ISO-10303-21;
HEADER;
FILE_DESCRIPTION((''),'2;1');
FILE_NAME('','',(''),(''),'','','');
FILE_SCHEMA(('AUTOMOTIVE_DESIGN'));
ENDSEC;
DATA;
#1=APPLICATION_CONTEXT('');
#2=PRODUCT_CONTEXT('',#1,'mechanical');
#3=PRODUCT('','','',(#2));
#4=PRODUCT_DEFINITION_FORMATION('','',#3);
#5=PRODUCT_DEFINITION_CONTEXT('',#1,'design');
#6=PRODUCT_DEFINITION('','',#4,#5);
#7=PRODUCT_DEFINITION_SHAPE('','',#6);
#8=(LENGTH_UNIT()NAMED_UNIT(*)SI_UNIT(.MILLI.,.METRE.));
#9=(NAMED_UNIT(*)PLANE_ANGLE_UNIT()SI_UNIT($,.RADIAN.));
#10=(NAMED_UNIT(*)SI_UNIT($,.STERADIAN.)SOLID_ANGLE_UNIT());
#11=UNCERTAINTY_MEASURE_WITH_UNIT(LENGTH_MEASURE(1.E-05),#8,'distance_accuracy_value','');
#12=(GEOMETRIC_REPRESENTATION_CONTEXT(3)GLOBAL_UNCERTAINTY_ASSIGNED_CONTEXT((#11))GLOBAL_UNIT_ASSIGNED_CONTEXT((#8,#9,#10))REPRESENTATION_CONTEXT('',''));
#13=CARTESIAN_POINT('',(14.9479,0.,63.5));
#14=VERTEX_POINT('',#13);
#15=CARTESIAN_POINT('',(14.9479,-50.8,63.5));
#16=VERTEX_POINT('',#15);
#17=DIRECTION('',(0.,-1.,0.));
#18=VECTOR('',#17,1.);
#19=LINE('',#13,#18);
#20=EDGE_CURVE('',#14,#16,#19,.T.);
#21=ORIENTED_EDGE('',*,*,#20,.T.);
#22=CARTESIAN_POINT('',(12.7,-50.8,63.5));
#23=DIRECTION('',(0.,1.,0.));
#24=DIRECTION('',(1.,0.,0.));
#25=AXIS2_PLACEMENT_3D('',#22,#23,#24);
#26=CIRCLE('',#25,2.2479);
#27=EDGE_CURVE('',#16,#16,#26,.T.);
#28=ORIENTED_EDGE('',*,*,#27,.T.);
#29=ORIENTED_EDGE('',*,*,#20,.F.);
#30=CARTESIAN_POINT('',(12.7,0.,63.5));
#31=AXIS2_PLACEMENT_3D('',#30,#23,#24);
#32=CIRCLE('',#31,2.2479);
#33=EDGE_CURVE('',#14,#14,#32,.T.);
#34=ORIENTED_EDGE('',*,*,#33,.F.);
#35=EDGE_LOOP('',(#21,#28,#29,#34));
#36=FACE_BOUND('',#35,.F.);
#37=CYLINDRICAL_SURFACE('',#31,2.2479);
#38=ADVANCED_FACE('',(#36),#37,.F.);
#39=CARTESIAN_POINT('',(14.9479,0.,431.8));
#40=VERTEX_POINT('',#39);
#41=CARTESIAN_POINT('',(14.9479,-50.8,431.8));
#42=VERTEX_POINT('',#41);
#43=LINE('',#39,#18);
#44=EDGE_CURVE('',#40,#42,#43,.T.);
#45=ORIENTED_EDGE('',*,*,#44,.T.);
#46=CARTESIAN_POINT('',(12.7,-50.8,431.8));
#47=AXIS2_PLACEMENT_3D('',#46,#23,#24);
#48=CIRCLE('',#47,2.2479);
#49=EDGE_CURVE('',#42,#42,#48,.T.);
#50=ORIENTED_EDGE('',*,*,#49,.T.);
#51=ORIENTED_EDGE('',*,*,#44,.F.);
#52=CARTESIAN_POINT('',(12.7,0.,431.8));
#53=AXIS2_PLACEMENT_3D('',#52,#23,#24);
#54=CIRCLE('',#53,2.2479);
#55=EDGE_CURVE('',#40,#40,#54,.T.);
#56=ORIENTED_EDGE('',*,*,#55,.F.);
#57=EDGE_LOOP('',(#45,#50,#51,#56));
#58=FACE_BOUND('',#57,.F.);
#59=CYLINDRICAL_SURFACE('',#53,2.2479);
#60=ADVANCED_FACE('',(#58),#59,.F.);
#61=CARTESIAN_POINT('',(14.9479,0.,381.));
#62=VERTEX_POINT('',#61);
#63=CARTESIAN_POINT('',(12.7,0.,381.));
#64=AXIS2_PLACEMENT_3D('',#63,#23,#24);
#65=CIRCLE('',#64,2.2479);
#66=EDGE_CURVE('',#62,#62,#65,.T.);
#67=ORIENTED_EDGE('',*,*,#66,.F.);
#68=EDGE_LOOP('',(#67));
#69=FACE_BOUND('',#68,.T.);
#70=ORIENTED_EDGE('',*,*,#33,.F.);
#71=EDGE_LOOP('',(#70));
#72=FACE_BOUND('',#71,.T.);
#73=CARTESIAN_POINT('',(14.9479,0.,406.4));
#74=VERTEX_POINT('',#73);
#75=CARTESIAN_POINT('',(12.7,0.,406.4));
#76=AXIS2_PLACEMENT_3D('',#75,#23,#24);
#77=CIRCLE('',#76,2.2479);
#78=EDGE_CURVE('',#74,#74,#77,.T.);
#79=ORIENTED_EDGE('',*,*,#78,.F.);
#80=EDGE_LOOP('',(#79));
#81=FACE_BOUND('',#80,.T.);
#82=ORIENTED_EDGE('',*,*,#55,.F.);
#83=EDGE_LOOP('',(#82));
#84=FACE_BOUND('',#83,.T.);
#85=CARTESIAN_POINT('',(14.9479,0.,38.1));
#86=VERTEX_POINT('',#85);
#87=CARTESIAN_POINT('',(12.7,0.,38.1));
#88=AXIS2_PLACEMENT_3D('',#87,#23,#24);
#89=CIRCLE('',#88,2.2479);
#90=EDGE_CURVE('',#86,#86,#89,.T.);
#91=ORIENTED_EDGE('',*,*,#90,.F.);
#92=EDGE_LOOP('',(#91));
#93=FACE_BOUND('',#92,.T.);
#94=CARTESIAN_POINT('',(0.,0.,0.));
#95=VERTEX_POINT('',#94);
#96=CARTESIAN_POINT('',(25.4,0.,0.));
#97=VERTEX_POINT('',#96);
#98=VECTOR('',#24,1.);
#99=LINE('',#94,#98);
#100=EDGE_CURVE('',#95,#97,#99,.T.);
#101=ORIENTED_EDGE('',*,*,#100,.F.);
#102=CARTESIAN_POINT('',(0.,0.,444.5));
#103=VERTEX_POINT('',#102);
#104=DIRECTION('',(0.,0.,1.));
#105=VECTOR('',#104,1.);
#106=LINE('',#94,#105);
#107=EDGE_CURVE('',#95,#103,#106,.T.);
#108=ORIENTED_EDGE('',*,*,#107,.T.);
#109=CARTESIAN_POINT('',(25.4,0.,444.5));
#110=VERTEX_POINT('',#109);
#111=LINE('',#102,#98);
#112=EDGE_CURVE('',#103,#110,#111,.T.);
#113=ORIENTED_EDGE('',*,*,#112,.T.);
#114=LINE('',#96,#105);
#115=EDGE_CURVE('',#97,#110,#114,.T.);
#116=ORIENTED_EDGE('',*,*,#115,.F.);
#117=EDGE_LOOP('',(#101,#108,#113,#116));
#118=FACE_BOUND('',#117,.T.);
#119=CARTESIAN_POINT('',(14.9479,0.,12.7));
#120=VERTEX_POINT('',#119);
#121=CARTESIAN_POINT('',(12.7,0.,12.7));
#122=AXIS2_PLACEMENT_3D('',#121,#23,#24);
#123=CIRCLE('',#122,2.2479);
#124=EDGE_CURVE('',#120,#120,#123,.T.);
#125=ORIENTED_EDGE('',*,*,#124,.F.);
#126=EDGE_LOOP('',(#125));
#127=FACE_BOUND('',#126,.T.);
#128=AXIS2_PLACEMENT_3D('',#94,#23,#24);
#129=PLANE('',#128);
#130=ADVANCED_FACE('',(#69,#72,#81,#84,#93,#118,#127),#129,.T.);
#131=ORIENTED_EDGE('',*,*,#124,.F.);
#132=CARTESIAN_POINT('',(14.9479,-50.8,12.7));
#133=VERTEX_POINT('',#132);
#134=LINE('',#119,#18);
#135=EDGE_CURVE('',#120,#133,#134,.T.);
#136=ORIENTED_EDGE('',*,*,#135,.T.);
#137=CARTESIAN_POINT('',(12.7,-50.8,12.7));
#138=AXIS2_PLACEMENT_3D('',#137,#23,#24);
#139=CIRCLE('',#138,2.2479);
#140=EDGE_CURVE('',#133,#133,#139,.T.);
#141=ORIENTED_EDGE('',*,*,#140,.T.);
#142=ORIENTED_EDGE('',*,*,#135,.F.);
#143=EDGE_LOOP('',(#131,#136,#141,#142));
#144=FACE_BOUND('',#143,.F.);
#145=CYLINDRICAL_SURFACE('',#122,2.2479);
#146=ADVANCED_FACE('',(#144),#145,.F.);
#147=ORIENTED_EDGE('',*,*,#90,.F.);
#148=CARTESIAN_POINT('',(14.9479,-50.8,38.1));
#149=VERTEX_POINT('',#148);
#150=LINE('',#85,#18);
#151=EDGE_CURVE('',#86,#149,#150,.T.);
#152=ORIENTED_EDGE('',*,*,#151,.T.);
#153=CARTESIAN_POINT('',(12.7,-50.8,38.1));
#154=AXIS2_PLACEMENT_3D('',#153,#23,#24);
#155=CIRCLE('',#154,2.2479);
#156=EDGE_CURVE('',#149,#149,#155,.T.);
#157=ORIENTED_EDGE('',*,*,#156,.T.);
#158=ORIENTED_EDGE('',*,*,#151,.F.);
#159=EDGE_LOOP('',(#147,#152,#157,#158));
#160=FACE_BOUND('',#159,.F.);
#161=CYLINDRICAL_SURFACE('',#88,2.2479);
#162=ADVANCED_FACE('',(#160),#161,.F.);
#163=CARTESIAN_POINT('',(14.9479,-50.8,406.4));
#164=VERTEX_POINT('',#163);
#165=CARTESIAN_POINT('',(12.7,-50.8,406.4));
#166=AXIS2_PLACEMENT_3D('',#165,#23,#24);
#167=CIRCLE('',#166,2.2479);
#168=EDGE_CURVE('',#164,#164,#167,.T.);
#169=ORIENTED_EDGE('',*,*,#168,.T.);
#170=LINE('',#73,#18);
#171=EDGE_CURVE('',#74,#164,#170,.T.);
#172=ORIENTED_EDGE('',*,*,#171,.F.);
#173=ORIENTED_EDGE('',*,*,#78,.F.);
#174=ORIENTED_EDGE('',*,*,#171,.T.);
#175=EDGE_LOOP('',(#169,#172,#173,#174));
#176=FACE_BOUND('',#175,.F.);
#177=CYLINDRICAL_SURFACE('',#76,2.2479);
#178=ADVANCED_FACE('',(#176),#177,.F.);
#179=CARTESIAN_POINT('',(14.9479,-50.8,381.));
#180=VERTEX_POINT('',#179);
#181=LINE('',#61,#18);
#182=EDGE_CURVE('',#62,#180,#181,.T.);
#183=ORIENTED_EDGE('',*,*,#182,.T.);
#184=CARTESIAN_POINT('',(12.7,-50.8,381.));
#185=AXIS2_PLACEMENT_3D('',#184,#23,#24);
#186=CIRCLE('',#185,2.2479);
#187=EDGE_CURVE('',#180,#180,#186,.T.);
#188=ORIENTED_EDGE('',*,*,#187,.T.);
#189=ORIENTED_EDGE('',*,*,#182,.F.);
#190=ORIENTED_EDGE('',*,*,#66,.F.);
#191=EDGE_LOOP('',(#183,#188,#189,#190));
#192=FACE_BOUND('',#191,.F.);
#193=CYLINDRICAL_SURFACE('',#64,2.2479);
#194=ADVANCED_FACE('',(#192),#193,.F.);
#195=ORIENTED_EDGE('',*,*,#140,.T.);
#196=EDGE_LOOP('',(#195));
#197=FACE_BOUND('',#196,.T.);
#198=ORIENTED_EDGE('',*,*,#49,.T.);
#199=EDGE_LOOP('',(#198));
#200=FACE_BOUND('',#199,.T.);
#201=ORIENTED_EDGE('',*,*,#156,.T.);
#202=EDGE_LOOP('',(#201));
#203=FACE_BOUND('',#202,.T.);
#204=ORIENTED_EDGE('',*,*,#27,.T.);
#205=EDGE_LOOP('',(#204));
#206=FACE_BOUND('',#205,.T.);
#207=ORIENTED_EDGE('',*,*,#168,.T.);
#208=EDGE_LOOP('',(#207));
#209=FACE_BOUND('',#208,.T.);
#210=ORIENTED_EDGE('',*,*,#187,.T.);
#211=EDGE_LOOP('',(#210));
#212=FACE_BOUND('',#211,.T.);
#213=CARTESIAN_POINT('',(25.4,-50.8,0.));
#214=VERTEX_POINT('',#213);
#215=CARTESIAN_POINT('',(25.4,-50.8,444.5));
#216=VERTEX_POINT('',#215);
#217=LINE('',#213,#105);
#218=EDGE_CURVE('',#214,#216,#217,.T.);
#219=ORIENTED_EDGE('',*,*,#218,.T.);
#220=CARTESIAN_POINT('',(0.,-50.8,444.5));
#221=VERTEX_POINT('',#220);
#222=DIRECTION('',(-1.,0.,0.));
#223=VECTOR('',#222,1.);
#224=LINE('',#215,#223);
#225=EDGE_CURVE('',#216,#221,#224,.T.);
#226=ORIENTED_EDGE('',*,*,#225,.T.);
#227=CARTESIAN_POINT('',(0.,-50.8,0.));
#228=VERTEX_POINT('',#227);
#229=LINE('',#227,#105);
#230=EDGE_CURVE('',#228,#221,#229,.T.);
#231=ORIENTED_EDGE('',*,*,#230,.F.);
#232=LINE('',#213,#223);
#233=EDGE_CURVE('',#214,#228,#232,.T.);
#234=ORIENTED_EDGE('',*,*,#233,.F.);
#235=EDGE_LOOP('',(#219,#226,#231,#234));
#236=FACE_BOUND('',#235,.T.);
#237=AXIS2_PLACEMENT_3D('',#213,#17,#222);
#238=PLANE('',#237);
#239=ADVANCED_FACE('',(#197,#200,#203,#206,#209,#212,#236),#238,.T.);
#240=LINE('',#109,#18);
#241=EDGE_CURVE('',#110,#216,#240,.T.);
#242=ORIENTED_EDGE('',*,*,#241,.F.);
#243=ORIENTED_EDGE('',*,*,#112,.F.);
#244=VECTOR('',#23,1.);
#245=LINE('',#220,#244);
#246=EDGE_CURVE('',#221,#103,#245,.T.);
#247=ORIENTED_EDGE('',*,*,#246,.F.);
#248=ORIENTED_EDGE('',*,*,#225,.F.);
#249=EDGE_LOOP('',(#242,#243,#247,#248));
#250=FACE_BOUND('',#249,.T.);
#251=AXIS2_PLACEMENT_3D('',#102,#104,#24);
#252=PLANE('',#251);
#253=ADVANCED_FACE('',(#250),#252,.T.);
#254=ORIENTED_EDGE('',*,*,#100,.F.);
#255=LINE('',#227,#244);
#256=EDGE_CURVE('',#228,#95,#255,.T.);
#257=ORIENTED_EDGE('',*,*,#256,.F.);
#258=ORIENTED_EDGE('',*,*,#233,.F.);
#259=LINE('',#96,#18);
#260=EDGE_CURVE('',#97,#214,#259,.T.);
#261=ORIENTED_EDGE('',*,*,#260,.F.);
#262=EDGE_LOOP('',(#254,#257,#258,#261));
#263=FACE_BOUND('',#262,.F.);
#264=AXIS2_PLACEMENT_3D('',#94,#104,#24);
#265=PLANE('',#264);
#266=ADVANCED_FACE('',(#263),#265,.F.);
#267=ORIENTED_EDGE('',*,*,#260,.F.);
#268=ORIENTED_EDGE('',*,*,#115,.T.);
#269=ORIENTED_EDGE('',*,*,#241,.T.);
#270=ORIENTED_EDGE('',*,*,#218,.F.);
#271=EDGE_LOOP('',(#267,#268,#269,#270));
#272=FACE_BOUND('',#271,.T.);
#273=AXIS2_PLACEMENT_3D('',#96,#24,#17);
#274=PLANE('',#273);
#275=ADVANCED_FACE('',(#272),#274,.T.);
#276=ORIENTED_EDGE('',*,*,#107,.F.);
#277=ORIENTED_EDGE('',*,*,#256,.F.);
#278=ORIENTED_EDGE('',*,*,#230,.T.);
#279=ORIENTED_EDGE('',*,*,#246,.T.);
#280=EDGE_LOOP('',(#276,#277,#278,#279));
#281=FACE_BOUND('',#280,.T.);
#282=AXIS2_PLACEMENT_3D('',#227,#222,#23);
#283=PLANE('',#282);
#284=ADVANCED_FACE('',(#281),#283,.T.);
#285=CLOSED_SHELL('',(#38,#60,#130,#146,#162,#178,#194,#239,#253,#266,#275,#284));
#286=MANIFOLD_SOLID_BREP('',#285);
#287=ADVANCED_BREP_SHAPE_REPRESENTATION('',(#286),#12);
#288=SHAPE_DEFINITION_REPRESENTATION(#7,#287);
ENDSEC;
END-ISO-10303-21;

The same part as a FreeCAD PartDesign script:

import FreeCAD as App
import Part
import Sketcher
Q = App.Units.Quantity


def add_polygon(sketch, points):
    """Adds a closed chain of lines whose ends are joined by coincident constraints."""
    first, n = sketch.GeometryCount, len(points)
    for a, b in zip(points, points[1:] + points[:1]):
        sketch.addGeometry(Part.LineSegment(App.Vector(*a, 0), App.Vector(*b, 0)), False)
    for i in range(n):
        sketch.addConstraint(Sketcher.Constraint("Coincident", first + i, 2, first + (i + 1) % n, 1))

doc = App.newDocument("Part")
body = doc.addObject("PartDesign::Body", "Body")

sketch1 = doc.addObject("Sketcher::SketchObject", "Sketch")
body.addObject(sketch1)
sketch1.AttachmentSupport = (doc.XY_Plane, [""])
sketch1.MapMode = "FlatFace"
add_polygon(sketch1, [(25, 0), (0, 0), (0, -51), (25, -51)])
sketch1.addConstraint(Sketcher.Constraint("Horizontal", 0))
sketch1.addConstraint(Sketcher.Constraint("Vertical", 1))
sketch1.addConstraint(Sketcher.Constraint("Horizontal", 2))
sketch1.addConstraint(Sketcher.Constraint("Vertical", 3))
sketch1.addConstraint(Sketcher.Constraint("Coincident", 0, 2, -1, 1))
sketch1.addConstraint(Sketcher.Constraint("DistanceX", 0, 2, 0, 1, Q("1 in")))
sketch1.addConstraint(Sketcher.Constraint("DistanceY", 1, 2, 1, 1, Q("2 in")))
pad1 = doc.addObject("PartDesign::Pad", "Pad")
body.addObject(pad1)
pad1.Profile = sketch1
pad1.Length = Q("17.5 in")

sketch2 = doc.addObject("Sketcher::SketchObject", "Sketch001")
body.addObject(sketch2)
sketch2.AttachmentSupport = (doc.XZ_Plane, [""])
sketch2.MapMode = "FlatFace"
sketch2.addGeometry(Part.Circle(App.Vector(12.7, 431.8, 0), App.Vector(0, 0, 1), 2.2), False)
sketch2.addGeometry(Part.Circle(App.Vector(12.7, 406.4, 0), App.Vector(0, 0, 1), 2.2), False)
sketch2.addGeometry(Part.Circle(App.Vector(12.7, 381, 0), App.Vector(0, 0, 1), 2.2), False)
sketch2.addConstraint(Sketcher.Constraint("Equal", 0, 1))
sketch2.addConstraint(Sketcher.Constraint("Equal", 1, 2))
sketch2.addConstraint(Sketcher.Constraint("Vertical", 0, 3, 1, 3))
sketch2.addConstraint(Sketcher.Constraint("Vertical", 1, 3, 2, 3))
sketch2.addConstraint(Sketcher.Constraint("Diameter", 0, Q("0.177 in")))
sketch2.addConstraint(Sketcher.Constraint("DistanceY", 1, 3, 0, 3, Q("1 in")))
sketch2.addConstraint(Sketcher.Constraint("DistanceY", 2, 3, 1, 3, Q("1 in")))
sketch2.addConstraint(Sketcher.Constraint("DistanceX", -1, 1, 0, 3, Q("0.5 in")))
sketch2.addConstraint(Sketcher.Constraint("DistanceY", -1, 1, 0, 3, Q("17 in")))
pocket1 = doc.addObject("PartDesign::Pocket", "Pocket")
body.addObject(pocket1)
pocket1.Profile = sketch2
pocket1.Length = Q("24 in")
pocket1.Reversed = True

sketch3 = doc.addObject("Sketcher::SketchObject", "Sketch002")
body.addObject(sketch3)
sketch3.AttachmentSupport = (doc.XZ_Plane, [""])
sketch3.MapMode = "FlatFace"
sketch3.addGeometry(Part.Circle(App.Vector(12.7, 12.7, 0), App.Vector(0, 0, 1), 2.2), False)
sketch3.addGeometry(Part.Circle(App.Vector(12.7, 38.1, 0), App.Vector(0, 0, 1), 2.2), False)
sketch3.addGeometry(Part.Circle(App.Vector(12.7, 63.5, 0), App.Vector(0, 0, 1), 2.2), False)
sketch3.addConstraint(Sketcher.Constraint("Equal", 0, 1))
sketch3.addConstraint(Sketcher.Constraint("Equal", 1, 2))
sketch3.addConstraint(Sketcher.Constraint("Vertical", 0, 3, 1, 3))
sketch3.addConstraint(Sketcher.Constraint("Vertical", 1, 3, 2, 3))
sketch3.addConstraint(Sketcher.Constraint("Diameter", 0, Q("0.177 in")))
sketch3.addConstraint(Sketcher.Constraint("DistanceY", 0, 3, 1, 3, Q("1 in")))
sketch3.addConstraint(Sketcher.Constraint("DistanceY", 1, 3, 2, 3, Q("1 in")))
sketch3.addConstraint(Sketcher.Constraint("DistanceX", -1, 1, 0, 3, Q("0.5 in")))
sketch3.addConstraint(Sketcher.Constraint("DistanceY", -1, 1, 0, 3, Q("0.5 in")))
pocket2 = doc.addObject("PartDesign::Pocket", "Pocket001")
body.addObject(pocket2)
pocket2.Profile = sketch3
pocket2.Length = Q("24 in")
pocket2.Reversed = True

doc.recompute()
